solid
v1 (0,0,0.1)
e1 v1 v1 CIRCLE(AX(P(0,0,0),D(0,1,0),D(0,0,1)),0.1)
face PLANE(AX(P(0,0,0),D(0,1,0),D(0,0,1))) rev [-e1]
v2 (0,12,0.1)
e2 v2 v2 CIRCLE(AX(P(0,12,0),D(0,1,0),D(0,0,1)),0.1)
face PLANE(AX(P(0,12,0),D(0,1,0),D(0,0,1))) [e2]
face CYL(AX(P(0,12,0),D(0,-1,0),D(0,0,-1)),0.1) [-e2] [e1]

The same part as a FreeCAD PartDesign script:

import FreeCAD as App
import Part
import Sketcher
from FreeCAD import Vector
Q = App.Units.Quantity

doc = App.newDocument("Part")
body = doc.addObject("PartDesign::Body", "Body")

# Sketch on XZ plane
sketch1 = body.newObject("Sketcher::SketchObject", "Sketch")
sketch1.AttachmentSupport = (doc.getObject("XZ_Plane"), [""])
sketch1.MapMode = "FlatFace"
sketch1.addGeometry(Part.Circle(Vector(0, 0, 0), Vector(0, 0, 1), 0.1), False)
sketch1.addConstraint([
    Sketcher.Constraint("Coincident", 0, 3, -1, 1),
    Sketcher.Constraint("Diameter", 0, Q("0.2 mm")),
])
pad1 = body.newObject("PartDesign::Pad", "Pad")
pad1.Profile = sketch1
pad1.Length = 12
pad1.Reversed = True

doc.recompute()
